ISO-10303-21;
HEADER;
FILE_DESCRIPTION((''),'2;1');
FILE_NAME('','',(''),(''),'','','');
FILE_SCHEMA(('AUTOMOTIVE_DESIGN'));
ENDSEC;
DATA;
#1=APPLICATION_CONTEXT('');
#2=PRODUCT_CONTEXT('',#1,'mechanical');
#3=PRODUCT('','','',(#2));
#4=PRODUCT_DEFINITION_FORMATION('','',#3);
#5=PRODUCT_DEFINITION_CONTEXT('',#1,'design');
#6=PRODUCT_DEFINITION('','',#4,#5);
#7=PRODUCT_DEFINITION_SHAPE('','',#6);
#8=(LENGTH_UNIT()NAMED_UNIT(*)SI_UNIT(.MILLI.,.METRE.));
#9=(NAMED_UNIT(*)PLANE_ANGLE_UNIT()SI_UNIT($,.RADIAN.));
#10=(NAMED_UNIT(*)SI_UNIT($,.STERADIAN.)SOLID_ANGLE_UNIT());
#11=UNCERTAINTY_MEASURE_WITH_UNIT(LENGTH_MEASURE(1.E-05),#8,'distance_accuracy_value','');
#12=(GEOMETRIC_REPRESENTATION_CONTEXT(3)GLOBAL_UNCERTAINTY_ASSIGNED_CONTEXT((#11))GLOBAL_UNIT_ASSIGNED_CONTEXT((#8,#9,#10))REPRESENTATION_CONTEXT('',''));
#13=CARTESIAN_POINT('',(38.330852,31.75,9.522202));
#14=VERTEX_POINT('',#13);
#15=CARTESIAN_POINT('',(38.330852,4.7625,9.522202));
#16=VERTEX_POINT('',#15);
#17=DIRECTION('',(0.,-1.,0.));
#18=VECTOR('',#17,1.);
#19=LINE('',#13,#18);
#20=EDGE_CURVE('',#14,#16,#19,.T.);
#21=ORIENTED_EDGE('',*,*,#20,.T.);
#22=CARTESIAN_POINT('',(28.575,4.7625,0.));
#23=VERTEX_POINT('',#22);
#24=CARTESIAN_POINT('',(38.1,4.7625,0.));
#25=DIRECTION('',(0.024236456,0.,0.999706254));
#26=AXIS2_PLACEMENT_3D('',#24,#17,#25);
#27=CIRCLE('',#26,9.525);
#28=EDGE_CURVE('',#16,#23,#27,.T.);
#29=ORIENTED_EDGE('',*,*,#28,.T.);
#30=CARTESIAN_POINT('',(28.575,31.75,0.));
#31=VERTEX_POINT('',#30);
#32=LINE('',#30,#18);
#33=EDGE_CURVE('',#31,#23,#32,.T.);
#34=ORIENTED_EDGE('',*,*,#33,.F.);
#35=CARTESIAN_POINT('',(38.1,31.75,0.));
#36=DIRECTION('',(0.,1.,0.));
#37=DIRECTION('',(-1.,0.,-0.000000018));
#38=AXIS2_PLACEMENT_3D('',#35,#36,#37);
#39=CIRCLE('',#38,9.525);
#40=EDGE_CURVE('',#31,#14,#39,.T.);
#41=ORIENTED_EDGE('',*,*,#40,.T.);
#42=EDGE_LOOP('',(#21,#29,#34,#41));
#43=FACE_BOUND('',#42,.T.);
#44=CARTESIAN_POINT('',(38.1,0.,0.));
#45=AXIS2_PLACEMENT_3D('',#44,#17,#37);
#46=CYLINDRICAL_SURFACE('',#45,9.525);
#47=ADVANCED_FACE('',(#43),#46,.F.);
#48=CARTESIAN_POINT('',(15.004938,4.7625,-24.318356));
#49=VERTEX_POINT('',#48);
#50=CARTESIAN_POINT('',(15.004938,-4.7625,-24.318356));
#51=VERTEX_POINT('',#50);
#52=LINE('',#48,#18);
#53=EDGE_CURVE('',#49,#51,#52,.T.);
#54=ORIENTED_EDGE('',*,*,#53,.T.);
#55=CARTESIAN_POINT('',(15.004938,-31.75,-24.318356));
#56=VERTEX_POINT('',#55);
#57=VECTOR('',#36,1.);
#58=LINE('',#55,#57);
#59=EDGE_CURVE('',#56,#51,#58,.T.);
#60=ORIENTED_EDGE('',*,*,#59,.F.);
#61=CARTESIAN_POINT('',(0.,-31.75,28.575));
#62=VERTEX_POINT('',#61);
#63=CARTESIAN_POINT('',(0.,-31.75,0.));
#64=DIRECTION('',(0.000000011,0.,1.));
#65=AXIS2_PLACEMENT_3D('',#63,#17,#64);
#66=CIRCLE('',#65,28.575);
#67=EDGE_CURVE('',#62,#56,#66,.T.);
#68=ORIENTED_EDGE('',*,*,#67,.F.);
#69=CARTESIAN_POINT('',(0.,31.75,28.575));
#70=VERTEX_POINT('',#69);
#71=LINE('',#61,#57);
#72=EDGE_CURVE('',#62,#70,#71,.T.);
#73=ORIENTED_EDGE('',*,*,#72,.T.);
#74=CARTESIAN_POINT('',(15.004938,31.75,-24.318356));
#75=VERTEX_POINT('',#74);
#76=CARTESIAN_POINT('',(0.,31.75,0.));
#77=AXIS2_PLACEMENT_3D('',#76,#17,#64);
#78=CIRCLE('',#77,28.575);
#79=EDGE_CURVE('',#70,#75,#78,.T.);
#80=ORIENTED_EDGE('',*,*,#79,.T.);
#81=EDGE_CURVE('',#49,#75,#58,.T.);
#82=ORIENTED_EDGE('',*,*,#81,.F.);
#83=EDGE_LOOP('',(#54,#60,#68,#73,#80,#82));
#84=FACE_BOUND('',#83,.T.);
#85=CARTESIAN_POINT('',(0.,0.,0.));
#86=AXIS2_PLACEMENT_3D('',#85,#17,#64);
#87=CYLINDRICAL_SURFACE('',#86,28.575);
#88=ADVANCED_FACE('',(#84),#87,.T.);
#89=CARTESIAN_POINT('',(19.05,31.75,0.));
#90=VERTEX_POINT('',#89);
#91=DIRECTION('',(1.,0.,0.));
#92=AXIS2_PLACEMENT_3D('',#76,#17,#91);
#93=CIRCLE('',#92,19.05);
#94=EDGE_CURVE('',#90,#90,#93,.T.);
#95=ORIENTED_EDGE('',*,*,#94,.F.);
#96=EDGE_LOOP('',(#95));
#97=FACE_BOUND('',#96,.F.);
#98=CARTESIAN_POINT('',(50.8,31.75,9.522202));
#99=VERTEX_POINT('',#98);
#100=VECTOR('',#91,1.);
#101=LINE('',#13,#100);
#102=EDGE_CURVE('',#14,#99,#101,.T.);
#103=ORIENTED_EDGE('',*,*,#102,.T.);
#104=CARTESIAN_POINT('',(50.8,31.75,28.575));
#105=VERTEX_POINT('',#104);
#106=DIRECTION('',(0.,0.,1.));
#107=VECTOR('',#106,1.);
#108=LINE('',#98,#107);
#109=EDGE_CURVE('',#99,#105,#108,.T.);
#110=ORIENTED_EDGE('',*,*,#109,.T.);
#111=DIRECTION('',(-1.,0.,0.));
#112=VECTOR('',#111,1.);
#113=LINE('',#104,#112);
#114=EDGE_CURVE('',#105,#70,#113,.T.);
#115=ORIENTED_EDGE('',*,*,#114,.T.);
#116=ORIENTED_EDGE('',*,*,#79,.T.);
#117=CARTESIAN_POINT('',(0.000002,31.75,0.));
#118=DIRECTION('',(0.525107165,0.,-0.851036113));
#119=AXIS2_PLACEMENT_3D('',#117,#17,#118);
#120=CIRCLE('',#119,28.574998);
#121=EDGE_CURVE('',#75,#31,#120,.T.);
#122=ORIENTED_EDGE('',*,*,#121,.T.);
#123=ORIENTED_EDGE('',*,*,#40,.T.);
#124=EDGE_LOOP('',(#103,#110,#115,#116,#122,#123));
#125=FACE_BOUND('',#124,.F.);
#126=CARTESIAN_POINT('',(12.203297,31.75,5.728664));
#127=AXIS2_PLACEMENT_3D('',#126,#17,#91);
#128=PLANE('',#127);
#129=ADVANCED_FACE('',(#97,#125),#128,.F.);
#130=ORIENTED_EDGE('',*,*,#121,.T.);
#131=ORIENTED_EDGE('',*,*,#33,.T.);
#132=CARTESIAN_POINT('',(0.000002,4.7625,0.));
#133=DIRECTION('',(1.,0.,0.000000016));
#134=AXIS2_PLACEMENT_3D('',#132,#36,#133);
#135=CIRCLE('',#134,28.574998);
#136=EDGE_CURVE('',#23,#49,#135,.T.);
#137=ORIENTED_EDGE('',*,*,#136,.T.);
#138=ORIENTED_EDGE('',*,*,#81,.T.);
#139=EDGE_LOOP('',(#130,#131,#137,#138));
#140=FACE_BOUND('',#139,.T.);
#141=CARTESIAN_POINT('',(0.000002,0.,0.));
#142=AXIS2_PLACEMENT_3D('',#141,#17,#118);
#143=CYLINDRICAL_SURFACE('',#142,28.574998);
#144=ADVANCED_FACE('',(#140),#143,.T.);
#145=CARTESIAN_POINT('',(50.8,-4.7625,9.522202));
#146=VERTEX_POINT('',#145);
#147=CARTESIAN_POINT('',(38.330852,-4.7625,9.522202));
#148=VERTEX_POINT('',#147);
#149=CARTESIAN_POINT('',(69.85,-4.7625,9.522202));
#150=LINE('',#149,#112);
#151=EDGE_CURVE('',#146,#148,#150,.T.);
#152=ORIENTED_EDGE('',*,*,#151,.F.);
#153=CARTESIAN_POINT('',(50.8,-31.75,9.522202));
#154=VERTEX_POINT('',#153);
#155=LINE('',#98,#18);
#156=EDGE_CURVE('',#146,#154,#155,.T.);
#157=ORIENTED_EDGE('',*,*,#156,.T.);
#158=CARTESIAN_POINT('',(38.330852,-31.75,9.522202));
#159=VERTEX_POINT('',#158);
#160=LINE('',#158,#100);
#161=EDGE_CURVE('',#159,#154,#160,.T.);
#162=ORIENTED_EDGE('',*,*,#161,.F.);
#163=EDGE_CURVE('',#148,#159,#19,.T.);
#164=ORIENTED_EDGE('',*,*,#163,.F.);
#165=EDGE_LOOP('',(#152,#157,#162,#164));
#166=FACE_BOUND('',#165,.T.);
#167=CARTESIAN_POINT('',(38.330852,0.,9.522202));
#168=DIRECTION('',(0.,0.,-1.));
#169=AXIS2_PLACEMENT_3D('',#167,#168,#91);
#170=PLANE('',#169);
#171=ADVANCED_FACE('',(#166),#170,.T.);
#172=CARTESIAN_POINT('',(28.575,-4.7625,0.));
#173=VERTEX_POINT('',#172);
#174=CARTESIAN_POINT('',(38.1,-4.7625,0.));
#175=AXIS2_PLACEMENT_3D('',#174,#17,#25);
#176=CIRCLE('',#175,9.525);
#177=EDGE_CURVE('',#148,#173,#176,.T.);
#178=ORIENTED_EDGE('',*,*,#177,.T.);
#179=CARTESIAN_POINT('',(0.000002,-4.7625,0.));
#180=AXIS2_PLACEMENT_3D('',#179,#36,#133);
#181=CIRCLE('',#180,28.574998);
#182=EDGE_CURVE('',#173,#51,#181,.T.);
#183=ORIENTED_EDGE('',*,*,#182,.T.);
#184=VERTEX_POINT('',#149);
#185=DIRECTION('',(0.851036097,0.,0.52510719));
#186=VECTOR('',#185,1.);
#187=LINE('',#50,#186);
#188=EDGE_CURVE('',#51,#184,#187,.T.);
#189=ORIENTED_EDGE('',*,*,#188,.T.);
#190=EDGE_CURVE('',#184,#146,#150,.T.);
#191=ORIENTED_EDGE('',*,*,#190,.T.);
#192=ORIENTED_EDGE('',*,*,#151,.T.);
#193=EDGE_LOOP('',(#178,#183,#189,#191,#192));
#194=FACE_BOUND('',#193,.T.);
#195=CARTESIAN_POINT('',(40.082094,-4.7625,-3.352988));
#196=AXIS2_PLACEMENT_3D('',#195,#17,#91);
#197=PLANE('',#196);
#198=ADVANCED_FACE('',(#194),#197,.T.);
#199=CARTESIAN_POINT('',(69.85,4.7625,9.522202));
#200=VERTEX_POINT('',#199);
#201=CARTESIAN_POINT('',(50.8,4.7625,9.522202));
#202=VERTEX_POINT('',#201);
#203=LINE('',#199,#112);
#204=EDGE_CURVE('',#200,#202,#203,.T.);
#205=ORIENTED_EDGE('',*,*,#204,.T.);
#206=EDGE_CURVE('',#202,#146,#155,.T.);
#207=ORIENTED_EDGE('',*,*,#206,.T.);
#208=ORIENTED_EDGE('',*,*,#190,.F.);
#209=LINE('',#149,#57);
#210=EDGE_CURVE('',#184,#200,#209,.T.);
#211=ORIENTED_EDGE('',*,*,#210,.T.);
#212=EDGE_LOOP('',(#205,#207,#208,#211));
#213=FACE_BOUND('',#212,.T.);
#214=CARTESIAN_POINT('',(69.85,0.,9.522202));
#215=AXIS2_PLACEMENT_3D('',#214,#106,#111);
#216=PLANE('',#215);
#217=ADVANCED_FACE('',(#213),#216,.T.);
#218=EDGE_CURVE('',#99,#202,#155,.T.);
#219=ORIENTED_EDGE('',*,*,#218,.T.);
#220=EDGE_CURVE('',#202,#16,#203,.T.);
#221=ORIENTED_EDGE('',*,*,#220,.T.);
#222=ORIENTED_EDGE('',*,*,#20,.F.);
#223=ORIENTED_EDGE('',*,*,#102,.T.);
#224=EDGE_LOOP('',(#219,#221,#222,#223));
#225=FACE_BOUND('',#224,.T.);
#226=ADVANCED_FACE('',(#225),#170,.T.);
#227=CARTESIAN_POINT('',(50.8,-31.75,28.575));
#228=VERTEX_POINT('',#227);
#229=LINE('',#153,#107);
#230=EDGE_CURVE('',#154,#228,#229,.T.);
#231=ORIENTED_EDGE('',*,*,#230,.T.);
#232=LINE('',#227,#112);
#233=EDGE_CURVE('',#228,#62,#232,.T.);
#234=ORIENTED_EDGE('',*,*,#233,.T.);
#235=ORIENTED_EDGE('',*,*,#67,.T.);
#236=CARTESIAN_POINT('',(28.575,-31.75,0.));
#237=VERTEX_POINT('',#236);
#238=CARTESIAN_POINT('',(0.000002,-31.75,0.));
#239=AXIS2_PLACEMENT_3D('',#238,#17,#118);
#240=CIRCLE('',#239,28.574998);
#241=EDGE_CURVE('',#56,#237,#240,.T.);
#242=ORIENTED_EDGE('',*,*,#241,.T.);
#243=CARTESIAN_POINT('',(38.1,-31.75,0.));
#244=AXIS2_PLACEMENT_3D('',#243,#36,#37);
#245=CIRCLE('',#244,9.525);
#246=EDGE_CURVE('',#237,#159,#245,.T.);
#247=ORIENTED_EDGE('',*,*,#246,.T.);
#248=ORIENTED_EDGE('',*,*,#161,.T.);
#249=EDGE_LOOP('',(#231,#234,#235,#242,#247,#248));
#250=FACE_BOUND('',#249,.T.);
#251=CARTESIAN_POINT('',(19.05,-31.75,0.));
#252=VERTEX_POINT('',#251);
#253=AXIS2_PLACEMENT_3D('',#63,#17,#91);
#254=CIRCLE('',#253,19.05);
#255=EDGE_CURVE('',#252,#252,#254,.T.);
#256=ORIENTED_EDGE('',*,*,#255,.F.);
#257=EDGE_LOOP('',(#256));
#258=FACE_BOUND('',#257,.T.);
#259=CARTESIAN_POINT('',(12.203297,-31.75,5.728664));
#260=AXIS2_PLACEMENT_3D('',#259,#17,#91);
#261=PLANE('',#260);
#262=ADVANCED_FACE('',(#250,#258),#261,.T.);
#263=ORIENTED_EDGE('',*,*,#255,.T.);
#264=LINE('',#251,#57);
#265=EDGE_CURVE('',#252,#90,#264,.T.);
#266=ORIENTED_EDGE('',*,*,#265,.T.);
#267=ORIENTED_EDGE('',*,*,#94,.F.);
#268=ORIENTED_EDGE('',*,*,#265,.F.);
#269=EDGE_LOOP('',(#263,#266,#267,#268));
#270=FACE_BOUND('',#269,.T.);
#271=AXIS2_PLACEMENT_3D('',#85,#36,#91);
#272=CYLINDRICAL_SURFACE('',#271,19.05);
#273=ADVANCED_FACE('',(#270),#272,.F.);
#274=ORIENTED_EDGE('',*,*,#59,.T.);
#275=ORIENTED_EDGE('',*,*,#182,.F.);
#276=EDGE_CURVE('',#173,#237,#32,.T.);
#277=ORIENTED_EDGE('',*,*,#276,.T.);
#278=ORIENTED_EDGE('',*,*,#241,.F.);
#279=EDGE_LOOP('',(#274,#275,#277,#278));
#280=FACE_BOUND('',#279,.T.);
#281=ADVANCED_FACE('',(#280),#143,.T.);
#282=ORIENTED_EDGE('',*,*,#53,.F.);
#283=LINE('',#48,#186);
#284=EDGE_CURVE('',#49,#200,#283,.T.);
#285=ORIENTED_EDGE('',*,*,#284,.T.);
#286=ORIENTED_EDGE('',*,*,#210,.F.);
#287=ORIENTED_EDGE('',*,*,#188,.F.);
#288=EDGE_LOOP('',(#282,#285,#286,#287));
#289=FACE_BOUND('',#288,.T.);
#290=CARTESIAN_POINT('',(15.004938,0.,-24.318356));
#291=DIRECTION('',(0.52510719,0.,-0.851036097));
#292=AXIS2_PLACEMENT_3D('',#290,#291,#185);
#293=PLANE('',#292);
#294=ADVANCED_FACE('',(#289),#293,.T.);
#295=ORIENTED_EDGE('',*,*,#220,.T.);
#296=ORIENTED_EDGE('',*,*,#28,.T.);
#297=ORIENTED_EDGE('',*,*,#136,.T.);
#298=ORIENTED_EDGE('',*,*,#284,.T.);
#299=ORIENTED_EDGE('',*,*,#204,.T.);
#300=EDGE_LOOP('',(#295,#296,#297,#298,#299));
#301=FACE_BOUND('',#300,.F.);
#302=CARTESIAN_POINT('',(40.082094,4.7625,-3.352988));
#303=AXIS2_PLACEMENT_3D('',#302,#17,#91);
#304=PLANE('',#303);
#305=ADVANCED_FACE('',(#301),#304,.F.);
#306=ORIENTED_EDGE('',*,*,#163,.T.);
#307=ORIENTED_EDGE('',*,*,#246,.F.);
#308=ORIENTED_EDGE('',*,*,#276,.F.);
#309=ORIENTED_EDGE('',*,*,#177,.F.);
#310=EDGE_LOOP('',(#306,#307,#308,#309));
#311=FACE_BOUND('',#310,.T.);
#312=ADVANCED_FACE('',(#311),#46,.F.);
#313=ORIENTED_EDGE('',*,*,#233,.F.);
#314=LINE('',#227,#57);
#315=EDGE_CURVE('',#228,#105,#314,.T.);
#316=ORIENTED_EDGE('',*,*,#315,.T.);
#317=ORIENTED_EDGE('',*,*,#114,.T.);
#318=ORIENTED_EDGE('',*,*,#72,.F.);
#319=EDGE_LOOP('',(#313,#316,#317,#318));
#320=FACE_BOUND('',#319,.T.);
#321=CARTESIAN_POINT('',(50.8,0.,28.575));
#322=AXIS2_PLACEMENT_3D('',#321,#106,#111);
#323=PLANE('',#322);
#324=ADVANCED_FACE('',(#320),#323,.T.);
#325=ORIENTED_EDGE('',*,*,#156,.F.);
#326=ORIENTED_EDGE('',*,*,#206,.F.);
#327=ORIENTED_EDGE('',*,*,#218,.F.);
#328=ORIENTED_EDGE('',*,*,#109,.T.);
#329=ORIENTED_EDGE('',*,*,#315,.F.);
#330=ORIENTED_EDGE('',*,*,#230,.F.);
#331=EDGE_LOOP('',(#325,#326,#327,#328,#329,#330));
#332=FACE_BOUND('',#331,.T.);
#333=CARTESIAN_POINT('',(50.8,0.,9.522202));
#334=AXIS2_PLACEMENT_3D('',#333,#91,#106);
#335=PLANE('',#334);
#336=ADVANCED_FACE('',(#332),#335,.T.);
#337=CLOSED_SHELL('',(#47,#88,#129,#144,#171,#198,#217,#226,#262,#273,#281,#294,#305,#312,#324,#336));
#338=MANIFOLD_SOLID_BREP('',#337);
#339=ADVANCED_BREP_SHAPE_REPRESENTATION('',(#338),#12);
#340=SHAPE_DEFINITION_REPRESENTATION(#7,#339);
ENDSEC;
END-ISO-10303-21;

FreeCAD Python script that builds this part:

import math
import FreeCAD as App
import Part
import Sketcher
from FreeCAD import Vector
Q = App.Units.Quantity

doc = App.newDocument("Part")
body = doc.addObject("PartDesign::Body", "Body")

# Sketch on XZ plane
sketch1 = doc.addObject("Sketcher::SketchObject", "Sketch")
body.addObject(sketch1)
sketch1.AttachmentSupport = (doc.XZ_Plane, [""])
sketch1.MapMode = "FlatFace"
sketch1.addGeometry(Part.ArcOfCircle(Part.Circle(Vector(0, 0, 0), Vector(0, 0, 1), 29), math.radians(-58), math.radians(0)), False)
sketch1.addGeometry(Part.ArcOfCircle(Part.Circle(Vector(38, 0, 0), Vector(0, 0, 1), 10), math.radians(89), math.radians(180)), False)
sketch1.addGeometry(Part.LineSegment(Vector(38, 10, 0), Vector(51, 10, 0)), False)
sketch1.addGeometry(Part.LineSegment(Vector(51, 10, 0), Vector(51, 29, 0)), False)
sketch1.addGeometry(Part.LineSegment(Vector(51, 29, 0), Vector(0, 29, 0)), False)
sketch1.addGeometry(Part.ArcOfCircle(Part.Circle(Vector(0, 0, 0), Vector(0, 0, 1), 29), math.radians(90), math.radians(302)), False)
sketch1.addGeometry(Part.Circle(Vector(0, 0, 0), Vector(0, 0, 1), 19), False)
sketch1.addConstraint(Sketcher.Constraint("Tangent", 0, 2, 1, 2))
sketch1.addConstraint(Sketcher.Constraint("Coincident", 1, 1, 2, 1))
sketch1.addConstraint(Sketcher.Constraint("Coincident", 2, 2, 3, 1))
sketch1.addConstraint(Sketcher.Constraint("Coincident", 3, 2, 4, 1))
sketch1.addConstraint(Sketcher.Constraint("Tangent", 4, 2, 5, 1))
sketch1.addConstraint(Sketcher.Constraint("Tangent", 5, 2, 0, 1))
sketch1.addConstraint(Sketcher.Constraint("Horizontal", 2))
sketch1.addConstraint(Sketcher.Constraint("Vertical", 3))
sketch1.addConstraint(Sketcher.Constraint("Horizontal", 4))
sketch1.addConstraint(Sketcher.Constraint("Coincident", 0, 3, -1, 1))
sketch1.addConstraint(Sketcher.Constraint("Coincident", 6, 3, -1, 1))
sketch1.addConstraint(Sketcher.Constraint("Equal", 0, 5))
sketch1.addConstraint(Sketcher.Constraint("PointOnObject", 1, 3, -1))
sketch1.addConstraint(Sketcher.Constraint("Diameter", 6, Q("1.5 in")))
sketch1.addConstraint(Sketcher.Constraint("DistanceX", 4, 2, 4, 1, Q("2 in")))
sketch1.addConstraint(Sketcher.Constraint("Radius", 0, Q("1.1249999 in")))
sketch1.addConstraint(Sketcher.Constraint("Radius", 1, Q("0.375 in")))
sketch1.addConstraint(Sketcher.Constraint("DistanceY", -1, 1, 1, 1, Q("9.522202 mm")))
sketch1.addConstraint(Sketcher.Constraint("DistanceX", -1, 1, 5, 2, Q("15.004938 mm")))
pad1 = doc.addObject("PartDesign::Pad", "Pad")
body.addObject(pad1)
pad1.Profile = sketch1
pad1.Length = Q("2.5 in")
pad1.Midplane = True

# Sketch on XZ plane
sketch2 = doc.addObject("Sketcher::SketchObject", "Sketch001")
body.addObject(sketch2)
sketch2.AttachmentSupport = (doc.XZ_Plane, [""])
sketch2.MapMode = "FlatFace"
sketch2.addGeometry(Part.ArcOfCircle(Part.Circle(Vector(38, 0, 0), Vector(0, 0, 1), 10), math.radians(89), math.radians(180)), False)
sketch2.addGeometry(Part.ArcOfCircle(Part.Circle(Vector(0, 0, 0), Vector(0, 0, 1), 29), math.radians(-58), math.radians(0)), False)
sketch2.addGeometry(Part.LineSegment(Vector(15, -24, 0), Vector(70, 10, 0)), False)
sketch2.addGeometry(Part.LineSegment(Vector(70, 10, 0), Vector(38, 10, 0)), False)
sketch2.addConstraint(Sketcher.Constraint("Tangent", 0, 2, 1, 2))
sketch2.addConstraint(Sketcher.Constraint("Tangent", 1, 1, 2, 1))
sketch2.addConstraint(Sketcher.Constraint("Coincident", 2, 2, 3, 1))
sketch2.addConstraint(Sketcher.Constraint("Coincident", 3, 2, 0, 1))
sketch2.addConstraint(Sketcher.Constraint("Horizontal", 3))
sketch2.addConstraint(Sketcher.Constraint("Coincident", 1, 3, -1, 1))
sketch2.addConstraint(Sketcher.Constraint("PointOnObject", 0, 3, -1))
sketch2.addConstraint(Sketcher.Constraint("Radius", 0, Q("0.375 in")))
sketch2.addConstraint(Sketcher.Constraint("Radius", 1, Q("1.1249999 in")))
sketch2.addConstraint(Sketcher.Constraint("DistanceX", -1, 1, 2, 2, Q("2.75 in")))
sketch2.addConstraint(Sketcher.Constraint("DistanceY", 0, 3, 2, 2, Q("9.522202 mm")))
pad2 = doc.addObject("PartDesign::Pad", "Pad001")
body.addObject(pad2)
pad2.Profile = sketch2
pad2.Length = Q("0.375 in")
pad2.Midplane = True

doc.recompute()
